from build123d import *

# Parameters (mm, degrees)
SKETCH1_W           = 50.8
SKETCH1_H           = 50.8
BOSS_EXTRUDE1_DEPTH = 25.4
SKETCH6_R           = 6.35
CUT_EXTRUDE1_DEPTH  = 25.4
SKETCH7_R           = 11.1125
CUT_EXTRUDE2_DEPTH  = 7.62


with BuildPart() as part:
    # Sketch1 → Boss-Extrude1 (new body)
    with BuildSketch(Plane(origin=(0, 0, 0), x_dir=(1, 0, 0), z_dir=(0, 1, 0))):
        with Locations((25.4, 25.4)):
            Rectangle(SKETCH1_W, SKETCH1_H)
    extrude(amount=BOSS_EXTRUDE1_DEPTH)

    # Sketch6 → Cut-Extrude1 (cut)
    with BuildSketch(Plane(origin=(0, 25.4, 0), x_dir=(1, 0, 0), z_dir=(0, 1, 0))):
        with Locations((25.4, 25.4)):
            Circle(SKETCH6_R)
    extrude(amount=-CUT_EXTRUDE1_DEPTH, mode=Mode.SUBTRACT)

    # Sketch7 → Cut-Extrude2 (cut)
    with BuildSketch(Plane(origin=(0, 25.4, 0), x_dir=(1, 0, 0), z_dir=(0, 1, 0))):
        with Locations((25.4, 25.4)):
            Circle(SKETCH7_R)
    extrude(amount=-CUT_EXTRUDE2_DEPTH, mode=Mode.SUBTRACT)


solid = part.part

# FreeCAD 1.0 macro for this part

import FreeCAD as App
import Part
import Sketcher

V = App.Vector
Q = App.Units.Quantity

doc = App.newDocument("Part")
body = doc.addObject("PartDesign::Body", "Body")

sketch1 = body.newObject("Sketcher::SketchObject", "Sketch")
sketch1.AttachmentSupport = (doc.getObject("XZ_Plane"), [""])
sketch1.MapMode = "FlatFace"
sketch1.addGeometry([
    Part.LineSegment(V(0, -51, 0), V(0, 0, 0)),
    Part.LineSegment(V(0, 0, 0), V(51, 0, 0)),
    Part.LineSegment(V(51, 0, 0), V(51, -51, 0)),
    Part.LineSegment(V(51, -51, 0), V(0, -51, 0)),
], False)
sketch1.addConstraint([
    Sketcher.Constraint("Coincident", 0, 2, 1, 1),
    Sketcher.Constraint("Coincident", 1, 2, 2, 1),
    Sketcher.Constraint("Coincident", 2, 2, 3, 1),
    Sketcher.Constraint("Coincident", 3, 2, 0, 1),
    Sketcher.Constraint("Vertical", 0),
    Sketcher.Constraint("Horizontal", 1),
    Sketcher.Constraint("Vertical", 2),
    Sketcher.Constraint("Horizontal", 3),
    Sketcher.Constraint("Coincident", 0, 2, -1, 1),
    Sketcher.Constraint("Equal", 3, 0),
    Sketcher.Constraint("DistanceX", 1, 1, 1, 2, Q("2 in")),
])
pad1 = body.newObject("PartDesign::Pad", "Pad")
pad1.Profile = sketch1
pad1.Length = Q("1 in")
pad1.Reversed = True

sketch2 = body.newObject("Sketcher::SketchObject", "Sketch001")
sketch2.AttachmentSupport = (doc.getObject("XZ_Plane"), [""])
sketch2.MapMode = "FlatFace"
sketch2.AttachmentOffset = App.Placement(V(0, 0, -1 * 25.4), App.Rotation())
sketch2.addGeometry(Part.Circle(V(25, -25, 0), V(0, 0, 1), 6), False)
sketch2.addConstraint([
    Sketcher.Constraint("Diameter", 0, Q("0.5 in")),
    Sketcher.Constraint("DistanceX", -1, 1, 0, 3, Q("1 in")),
    Sketcher.Constraint("DistanceY", 0, 3, -1, 1, Q("1 in")),
])
pocket1 = body.newObject("PartDesign::Pocket", "Pocket")
pocket1.Profile = sketch2
pocket1.Length = Q("1 in")
pocket1.Reversed = True

sketch3 = body.newObject("Sketcher::SketchObject", "Sketch002")
sketch3.AttachmentSupport = (doc.getObject("XZ_Plane"), [""])
sketch3.MapMode = "FlatFace"
sketch3.AttachmentOffset = App.Placement(V(0, 0, -1 * 25.4), App.Rotation())
sketch3.addGeometry(Part.Circle(V(25, -25, 0), V(0, 0, 1), 11), False)
sketch3.addConstraint([
    Sketcher.Constraint("Diameter", 0, Q("0.875 in")),
    Sketcher.Constraint("DistanceX", -1, 1, 0, 3, Q("1 in")),
    Sketcher.Constraint("DistanceY", 0, 3, -1, 1, Q("1 in")),
])
pocket2 = body.newObject("PartDesign::Pocket", "Pocket001")
pocket2.Profile = sketch3
pocket2.Length = Q("0.3 in")
pocket2.Reversed = True

doc.recompute()
